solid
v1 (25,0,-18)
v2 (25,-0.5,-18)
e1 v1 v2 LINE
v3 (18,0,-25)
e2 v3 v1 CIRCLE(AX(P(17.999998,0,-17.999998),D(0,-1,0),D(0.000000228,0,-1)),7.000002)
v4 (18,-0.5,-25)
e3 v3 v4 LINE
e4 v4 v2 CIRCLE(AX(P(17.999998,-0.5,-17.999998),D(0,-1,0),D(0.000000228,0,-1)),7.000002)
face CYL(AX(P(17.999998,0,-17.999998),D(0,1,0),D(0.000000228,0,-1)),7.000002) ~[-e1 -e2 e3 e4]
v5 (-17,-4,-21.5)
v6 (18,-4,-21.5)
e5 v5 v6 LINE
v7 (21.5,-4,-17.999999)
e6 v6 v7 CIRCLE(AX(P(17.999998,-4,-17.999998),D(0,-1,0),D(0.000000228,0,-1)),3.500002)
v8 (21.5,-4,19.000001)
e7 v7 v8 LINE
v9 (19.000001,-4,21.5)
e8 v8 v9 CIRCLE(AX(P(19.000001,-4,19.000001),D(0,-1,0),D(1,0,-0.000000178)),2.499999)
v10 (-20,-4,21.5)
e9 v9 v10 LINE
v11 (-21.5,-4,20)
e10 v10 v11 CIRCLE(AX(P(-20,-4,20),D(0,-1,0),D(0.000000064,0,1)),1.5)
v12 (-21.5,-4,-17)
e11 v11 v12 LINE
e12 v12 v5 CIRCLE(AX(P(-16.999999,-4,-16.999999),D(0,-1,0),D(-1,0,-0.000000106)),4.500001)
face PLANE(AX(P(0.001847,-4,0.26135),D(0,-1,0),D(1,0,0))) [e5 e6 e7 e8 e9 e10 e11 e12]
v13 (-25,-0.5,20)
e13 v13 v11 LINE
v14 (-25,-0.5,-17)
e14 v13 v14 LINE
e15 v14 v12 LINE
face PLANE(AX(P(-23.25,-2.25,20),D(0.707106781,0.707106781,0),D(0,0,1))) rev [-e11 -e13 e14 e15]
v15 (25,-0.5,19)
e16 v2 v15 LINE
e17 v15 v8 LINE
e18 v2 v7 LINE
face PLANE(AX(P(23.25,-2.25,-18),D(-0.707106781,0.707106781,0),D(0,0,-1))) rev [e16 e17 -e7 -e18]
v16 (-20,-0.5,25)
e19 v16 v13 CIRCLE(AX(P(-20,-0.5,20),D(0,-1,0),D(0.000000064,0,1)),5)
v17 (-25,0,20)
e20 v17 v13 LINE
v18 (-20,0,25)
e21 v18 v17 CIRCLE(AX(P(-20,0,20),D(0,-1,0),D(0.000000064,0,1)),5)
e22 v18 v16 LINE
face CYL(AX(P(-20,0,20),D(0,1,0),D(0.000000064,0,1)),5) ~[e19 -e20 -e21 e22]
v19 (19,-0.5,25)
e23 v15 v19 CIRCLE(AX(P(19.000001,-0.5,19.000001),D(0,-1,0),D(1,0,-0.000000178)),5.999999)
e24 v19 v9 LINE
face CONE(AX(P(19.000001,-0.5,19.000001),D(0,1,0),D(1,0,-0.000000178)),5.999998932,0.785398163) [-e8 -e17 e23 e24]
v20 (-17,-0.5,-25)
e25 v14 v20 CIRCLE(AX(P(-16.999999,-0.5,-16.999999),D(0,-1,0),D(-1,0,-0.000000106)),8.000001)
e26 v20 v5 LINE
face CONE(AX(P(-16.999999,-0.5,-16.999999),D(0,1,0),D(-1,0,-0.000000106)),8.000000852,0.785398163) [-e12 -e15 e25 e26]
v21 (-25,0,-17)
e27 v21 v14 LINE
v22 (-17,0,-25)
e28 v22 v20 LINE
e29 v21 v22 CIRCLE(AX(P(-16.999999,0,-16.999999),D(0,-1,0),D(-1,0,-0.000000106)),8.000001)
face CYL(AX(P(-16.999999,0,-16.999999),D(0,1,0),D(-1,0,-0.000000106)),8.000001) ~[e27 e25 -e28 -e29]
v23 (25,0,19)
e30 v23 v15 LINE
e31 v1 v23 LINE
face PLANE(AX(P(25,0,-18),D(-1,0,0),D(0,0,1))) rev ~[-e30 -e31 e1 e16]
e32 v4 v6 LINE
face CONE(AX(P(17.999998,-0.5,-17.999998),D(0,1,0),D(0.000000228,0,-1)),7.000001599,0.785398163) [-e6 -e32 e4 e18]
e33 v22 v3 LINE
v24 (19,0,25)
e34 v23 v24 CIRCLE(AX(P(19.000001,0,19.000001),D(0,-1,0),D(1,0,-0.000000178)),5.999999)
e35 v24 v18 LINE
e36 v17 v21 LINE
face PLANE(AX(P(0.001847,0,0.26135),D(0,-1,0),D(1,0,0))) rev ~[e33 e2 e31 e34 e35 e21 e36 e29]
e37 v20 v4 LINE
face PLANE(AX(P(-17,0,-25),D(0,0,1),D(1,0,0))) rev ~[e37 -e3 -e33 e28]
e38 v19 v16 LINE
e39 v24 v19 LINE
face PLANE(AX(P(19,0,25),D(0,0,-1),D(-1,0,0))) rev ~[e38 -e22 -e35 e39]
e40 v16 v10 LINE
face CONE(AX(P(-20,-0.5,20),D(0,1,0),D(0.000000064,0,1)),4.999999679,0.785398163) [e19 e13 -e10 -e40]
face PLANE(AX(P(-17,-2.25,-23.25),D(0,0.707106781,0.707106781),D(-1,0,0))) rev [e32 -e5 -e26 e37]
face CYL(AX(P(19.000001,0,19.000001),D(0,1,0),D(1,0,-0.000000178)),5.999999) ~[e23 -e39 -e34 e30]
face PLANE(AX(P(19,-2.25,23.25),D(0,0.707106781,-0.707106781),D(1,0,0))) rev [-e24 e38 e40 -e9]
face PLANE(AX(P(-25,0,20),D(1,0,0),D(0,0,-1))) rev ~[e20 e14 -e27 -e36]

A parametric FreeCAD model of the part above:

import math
import FreeCAD as App
import Part
import Sketcher


def edges_at(feature, points):
    """Names of the edges that pass closest to the given points."""
    edges = feature.Shape.Edges
    near = lambda p: min(range(len(edges)), key=lambda i: edges[i].distToShape(Part.Vertex(*p))[0])
    return sorted({f"Edge{near(p) + 1}" for p in points})

doc = App.newDocument("Part")
params = doc.addObject("Spreadsheet::Sheet", "Params")
for row, (alias, value) in enumerate([
    ("sketch1_radius", "5.999999 mm"),
    ("sketch1_radius2", "5 mm"),
    ("sketch1_radius3", "8.000001 mm"),
    ("sketch1_width", "39 mm"),
    ("sketch1_height", "37 mm"),
    ("pad1_length", "4 mm"),
    ("chamfer_size", "3.5 mm"),
], start=1):
    params.set(f"A{row}", alias)
    params.set(f"B{row}", "=" + value)
    params.setAlias(f"B{row}", alias)

body = doc.addObject("PartDesign::Body", "Body")

sketch1 = doc.addObject("Sketcher::SketchObject", "Sketch")
body.addObject(sketch1)
sketch1.AttachmentSupport = (doc.XZ_Plane, [""])
sketch1.MapMode = "FlatFace"
sketch1.addGeometry([
    Part.ArcOfCircle(Part.Circle(App.Vector(19.000001, 19.000001, 0), App.Vector(0, 0, 1), 5.999999), math.radians(-0.00001), math.radians(90.00001)),
    Part.LineSegment(App.Vector(19, 25, 0), App.Vector(-20, 25, 0)),
    Part.ArcOfCircle(Part.Circle(App.Vector(-20, 20, 0), App.Vector(0, 0, 1), 5), math.radians(89.999996), math.radians(180.000004)),
    Part.LineSegment(App.Vector(-25, 20, 0), App.Vector(-25, -17, 0)),
    Part.ArcOfCircle(Part.Circle(App.Vector(-16.999999, -16.999999, 0), App.Vector(0, 0, 1), 8.000001), math.radians(-179.999994), math.radians(-90.000006)),
    Part.LineSegment(App.Vector(-17, -25, 0), App.Vector(18, -25, 0)),
    Part.ArcOfCircle(Part.Circle(App.Vector(17.999998, -17.999998, 0), App.Vector(0, 0, 1), 7.000002), math.radians(-89.999987), math.radians(-0.000013)),
    Part.LineSegment(App.Vector(25, -18, 0), App.Vector(25, 19, 0)),
], False)
sketch1.addConstraint([
    Sketcher.Constraint("Tangent", 0, 2, 1, 1),
    Sketcher.Constraint("Tangent", 1, 2, 2, 1),
    Sketcher.Constraint("Tangent", 2, 2, 3, 1),
    Sketcher.Constraint("Tangent", 3, 2, 4, 1),
    Sketcher.Constraint("Tangent", 4, 2, 5, 1),
    Sketcher.Constraint("Tangent", 5, 2, 6, 1),
    Sketcher.Constraint("Tangent", 6, 2, 7, 1),
    Sketcher.Constraint("Tangent", 7, 2, 0, 1),
    Sketcher.Constraint("Horizontal", 1),
    Sketcher.Constraint("Vertical", 3),
    Sketcher.Constraint("Horizontal", 5),
    Sketcher.Constraint("Vertical", 7),
    Sketcher.Constraint("Equal", 3, 7),
    Sketcher.Constraint("Radius", 0, 5.999999),
    Sketcher.Constraint("Radius", 2, 5.0),
    Sketcher.Constraint("Radius", 4, 8.000001),
    Sketcher.Constraint("DistanceX", 1, 2, 1, 1, 39.0),
    Sketcher.Constraint("DistanceY", 3, 2, 3, 1, 37.0),
    Sketcher.Constraint("DistanceX", -1, 1, 0, 3, 19.000001),
    Sketcher.Constraint("DistanceY", -1, 1, 0, 3, 19.000001),
])
sketch1.setExpression("Constraints[13]", "Params.sketch1_radius")
sketch1.setExpression("Constraints[14]", "Params.sketch1_radius2")
sketch1.setExpression("Constraints[15]", "Params.sketch1_radius3")
sketch1.setExpression("Constraints[16]", "Params.sketch1_width")
sketch1.setExpression("Constraints[17]", "Params.sketch1_height")
pad1 = doc.addObject("PartDesign::Pad", "Pad")
body.addObject(pad1)
pad1.Profile = sketch1
pad1.setExpression("Length", "Params.pad1_length")
doc.recompute()

chamfer = doc.addObject("PartDesign::Chamfer", "Chamfer")
body.addObject(chamfer)
chamfer.Base = (pad1, edges_at(pad1, [
    (23.243, -4, 23.243),
    (-0.5, -4, 25),
    (-23.536, -4, 23.536),
    (-25, -4, 1.5),
    (-22.657, -4, -22.657),
    (0.5, -4, -25),
    (22.95, -4, -22.95),
    (25, -4, 0.5),
]))
chamfer.setExpression("Size", "Params.chamfer_size")

doc.recompute()
